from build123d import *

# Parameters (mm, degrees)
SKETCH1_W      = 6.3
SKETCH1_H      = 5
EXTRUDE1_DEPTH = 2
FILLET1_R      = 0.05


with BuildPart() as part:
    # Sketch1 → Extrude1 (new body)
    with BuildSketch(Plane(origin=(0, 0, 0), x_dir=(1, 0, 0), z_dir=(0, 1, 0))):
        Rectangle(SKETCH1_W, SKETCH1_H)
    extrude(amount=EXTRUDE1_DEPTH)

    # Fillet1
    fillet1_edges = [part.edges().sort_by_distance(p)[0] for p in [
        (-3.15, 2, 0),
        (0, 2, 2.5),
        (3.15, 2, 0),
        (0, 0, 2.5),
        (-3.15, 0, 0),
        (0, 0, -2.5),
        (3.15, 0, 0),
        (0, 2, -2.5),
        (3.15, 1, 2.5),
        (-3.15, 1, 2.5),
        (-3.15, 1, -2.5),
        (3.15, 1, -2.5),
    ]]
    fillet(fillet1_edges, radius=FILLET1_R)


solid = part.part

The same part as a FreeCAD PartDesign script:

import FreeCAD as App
import Part
import Sketcher
Q = App.Units.Quantity

doc = App.newDocument("Part")
body = doc.addObject("PartDesign::Body", "Body")

sketch1 = doc.addObject("Sketcher::SketchObject", "Sketch")
body.addObject(sketch1)
sketch1.AttachmentSupport = (doc.XZ_Plane, [""])
sketch1.MapMode = "FlatFace"
sketch1.addGeometry([
    Part.LineSegment(App.Vector(-3, -2, 0), App.Vector(-3, 2, 0)),
    Part.LineSegment(App.Vector(-3, 2, 0), App.Vector(3, 2, 0)),
    Part.LineSegment(App.Vector(3, 2, 0), App.Vector(3, -2, 0)),
    Part.LineSegment(App.Vector(3, -2, 0), App.Vector(-3, -2, 0)),
], False)
sketch1.addConstraint([
    Sketcher.Constraint("Coincident", 0, 2, 1, 1),
    Sketcher.Constraint("Coincident", 1, 2, 2, 1),
    Sketcher.Constraint("Coincident", 2, 2, 3, 1),
    Sketcher.Constraint("Coincident", 3, 2, 0, 1),
    Sketcher.Constraint("Vertical", 0),
    Sketcher.Constraint("Horizontal", 1),
    Sketcher.Constraint("Vertical", 2),
    Sketcher.Constraint("Horizontal", 3),
    Sketcher.Constraint("Symmetric", 0, 2, 2, 2, -1, 1),
    Sketcher.Constraint("DistanceY", 0, 1, 0, 2, Q("5 mm")),
    Sketcher.Constraint("DistanceX", 1, 1, 1, 2, Q("6.3 mm")),
])
pad1 = doc.addObject("PartDesign::Pad", "Pad")
body.addObject(pad1)
pad1.Profile = sketch1
pad1.Length = 2
pad1.Reversed = True
doc.recompute()

fillet = doc.addObject("PartDesign::Fillet", "Fillet")
body.addObject(fillet)
fillet.Base = (pad1, ["Edge1"])
fillet.UseAllEdges = True
fillet.Radius = 0.05

doc.recompute()
